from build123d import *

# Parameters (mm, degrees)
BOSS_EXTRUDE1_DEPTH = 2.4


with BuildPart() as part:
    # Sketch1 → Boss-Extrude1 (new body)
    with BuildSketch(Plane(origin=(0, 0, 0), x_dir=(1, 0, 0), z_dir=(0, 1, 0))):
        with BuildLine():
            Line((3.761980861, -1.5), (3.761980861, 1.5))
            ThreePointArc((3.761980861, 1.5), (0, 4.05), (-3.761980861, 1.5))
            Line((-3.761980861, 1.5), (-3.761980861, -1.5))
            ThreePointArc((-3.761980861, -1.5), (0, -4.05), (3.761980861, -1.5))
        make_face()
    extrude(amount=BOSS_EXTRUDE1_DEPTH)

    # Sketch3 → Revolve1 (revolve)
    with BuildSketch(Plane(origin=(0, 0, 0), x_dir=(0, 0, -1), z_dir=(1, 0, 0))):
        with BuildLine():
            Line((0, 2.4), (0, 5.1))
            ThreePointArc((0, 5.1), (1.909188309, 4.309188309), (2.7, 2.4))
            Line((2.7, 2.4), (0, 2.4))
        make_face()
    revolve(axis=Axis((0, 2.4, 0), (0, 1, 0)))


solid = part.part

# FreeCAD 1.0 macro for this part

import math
import FreeCAD as App
import Part
import Sketcher

V = App.Vector

doc = App.newDocument("Part")
body = doc.addObject("PartDesign::Body", "Body")

# Sketch on XZ plane
sketch1 = doc.addObject("Sketcher::SketchObject", "Sketch")
body.addObject(sketch1)
sketch1.AttachmentSupport = (doc.XZ_Plane, [""])
sketch1.MapMode = "FlatFace"
sketch1.addGeometry(Part.LineSegment(V(3.761981, 1.5, 0), V(3.761981, -1.5, 0)), False)
sketch1.addGeometry(Part.ArcOfCircle(Part.Circle(V(0, 0, 0), V(0, 0, 1), 4.05), math.radians(-158.261539), math.radians(-21.738461)), False)
sketch1.addGeometry(Part.LineSegment(V(-3.761981, -1.5, 0), V(-3.761981, 1.5, 0)), False)
sketch1.addGeometry(Part.ArcOfCircle(Part.Circle(V(0, 0, 0), V(0, 0, 1), 4.05), math.radians(21.738461), math.radians(158.261539)), False)
sketch1.addConstraint(Sketcher.Constraint("Coincident", 0, 2, 1, 2))
sketch1.addConstraint(Sketcher.Constraint("Coincident", 1, 1, 2, 1))
sketch1.addConstraint(Sketcher.Constraint("Coincident", 2, 2, 3, 2))
sketch1.addConstraint(Sketcher.Constraint("Coincident", 3, 1, 0, 1))
sketch1.addConstraint(Sketcher.Constraint("Vertical", 0))
sketch1.addConstraint(Sketcher.Constraint("Vertical", 2))
sketch1.addConstraint(Sketcher.Constraint("Coincident", 1, 3, -1, 1))
sketch1.addConstraint(Sketcher.Constraint("Coincident", 3, 3, -1, 1))
sketch1.addConstraint(Sketcher.Constraint("Equal", 1, 3))
sketch1.addConstraint(Sketcher.Constraint("Horizontal", 0, 2, 1, 1))
sketch1.addConstraint(Sketcher.Constraint("DistanceY", 0, 2, 0, 1, 3.0))
sketch1.addConstraint(Sketcher.Constraint("Radius", 1, 4.05))
pad1 = doc.addObject("PartDesign::Pad", "Pad")
body.addObject(pad1)
pad1.Profile = sketch1
pad1.Length = 2.4
pad1.Reversed = True

# Sketch on YZ plane
sketch2 = doc.addObject("Sketcher::SketchObject", "Sketch001")
body.addObject(sketch2)
sketch2.AttachmentSupport = (doc.YZ_Plane, [""])
sketch2.MapMode = "FlatFace"
sketch2.addGeometry(Part.LineSegment(V(5.1, 0, 0), V(2.4, 0, 0)), False)
sketch2.addGeometry(Part.LineSegment(V(2.4, 0, 0), V(2.4, -2.7, 0)), False)
sketch2.addGeometry(Part.ArcOfCircle(Part.Circle(V(2.4, 0, 0), V(0, 0, 1), 2.7), math.radians(-90), math.radians(0)), False)
sketch2.addConstraint(Sketcher.Constraint("Coincident", 0, 2, 1, 1))
sketch2.addConstraint(Sketcher.Constraint("Coincident", 1, 2, 2, 1))
sketch2.addConstraint(Sketcher.Constraint("Coincident", 2, 2, 0, 1))
sketch2.addConstraint(Sketcher.Constraint("Horizontal", 0))
sketch2.addConstraint(Sketcher.Constraint("Vertical", 1))
sketch2.addConstraint(Sketcher.Constraint("Coincident", 0, 2, 2, 3))
sketch2.addConstraint(Sketcher.Constraint("PointOnObject", 2, 3, -1))
sketch2.addConstraint(Sketcher.Constraint("Radius", 2, 2.7))
sketch2.addConstraint(Sketcher.Constraint("DistanceX", -1, 1, 2, 3, 2.4))
revolution = doc.addObject("PartDesign::Revolution", "Revolution")
body.addObject(revolution)
revolution.Profile = sketch2
revolution.ReferenceAxis = (sketch2, ["H_Axis"])
revolution.Angle = 360

doc.recompute()
